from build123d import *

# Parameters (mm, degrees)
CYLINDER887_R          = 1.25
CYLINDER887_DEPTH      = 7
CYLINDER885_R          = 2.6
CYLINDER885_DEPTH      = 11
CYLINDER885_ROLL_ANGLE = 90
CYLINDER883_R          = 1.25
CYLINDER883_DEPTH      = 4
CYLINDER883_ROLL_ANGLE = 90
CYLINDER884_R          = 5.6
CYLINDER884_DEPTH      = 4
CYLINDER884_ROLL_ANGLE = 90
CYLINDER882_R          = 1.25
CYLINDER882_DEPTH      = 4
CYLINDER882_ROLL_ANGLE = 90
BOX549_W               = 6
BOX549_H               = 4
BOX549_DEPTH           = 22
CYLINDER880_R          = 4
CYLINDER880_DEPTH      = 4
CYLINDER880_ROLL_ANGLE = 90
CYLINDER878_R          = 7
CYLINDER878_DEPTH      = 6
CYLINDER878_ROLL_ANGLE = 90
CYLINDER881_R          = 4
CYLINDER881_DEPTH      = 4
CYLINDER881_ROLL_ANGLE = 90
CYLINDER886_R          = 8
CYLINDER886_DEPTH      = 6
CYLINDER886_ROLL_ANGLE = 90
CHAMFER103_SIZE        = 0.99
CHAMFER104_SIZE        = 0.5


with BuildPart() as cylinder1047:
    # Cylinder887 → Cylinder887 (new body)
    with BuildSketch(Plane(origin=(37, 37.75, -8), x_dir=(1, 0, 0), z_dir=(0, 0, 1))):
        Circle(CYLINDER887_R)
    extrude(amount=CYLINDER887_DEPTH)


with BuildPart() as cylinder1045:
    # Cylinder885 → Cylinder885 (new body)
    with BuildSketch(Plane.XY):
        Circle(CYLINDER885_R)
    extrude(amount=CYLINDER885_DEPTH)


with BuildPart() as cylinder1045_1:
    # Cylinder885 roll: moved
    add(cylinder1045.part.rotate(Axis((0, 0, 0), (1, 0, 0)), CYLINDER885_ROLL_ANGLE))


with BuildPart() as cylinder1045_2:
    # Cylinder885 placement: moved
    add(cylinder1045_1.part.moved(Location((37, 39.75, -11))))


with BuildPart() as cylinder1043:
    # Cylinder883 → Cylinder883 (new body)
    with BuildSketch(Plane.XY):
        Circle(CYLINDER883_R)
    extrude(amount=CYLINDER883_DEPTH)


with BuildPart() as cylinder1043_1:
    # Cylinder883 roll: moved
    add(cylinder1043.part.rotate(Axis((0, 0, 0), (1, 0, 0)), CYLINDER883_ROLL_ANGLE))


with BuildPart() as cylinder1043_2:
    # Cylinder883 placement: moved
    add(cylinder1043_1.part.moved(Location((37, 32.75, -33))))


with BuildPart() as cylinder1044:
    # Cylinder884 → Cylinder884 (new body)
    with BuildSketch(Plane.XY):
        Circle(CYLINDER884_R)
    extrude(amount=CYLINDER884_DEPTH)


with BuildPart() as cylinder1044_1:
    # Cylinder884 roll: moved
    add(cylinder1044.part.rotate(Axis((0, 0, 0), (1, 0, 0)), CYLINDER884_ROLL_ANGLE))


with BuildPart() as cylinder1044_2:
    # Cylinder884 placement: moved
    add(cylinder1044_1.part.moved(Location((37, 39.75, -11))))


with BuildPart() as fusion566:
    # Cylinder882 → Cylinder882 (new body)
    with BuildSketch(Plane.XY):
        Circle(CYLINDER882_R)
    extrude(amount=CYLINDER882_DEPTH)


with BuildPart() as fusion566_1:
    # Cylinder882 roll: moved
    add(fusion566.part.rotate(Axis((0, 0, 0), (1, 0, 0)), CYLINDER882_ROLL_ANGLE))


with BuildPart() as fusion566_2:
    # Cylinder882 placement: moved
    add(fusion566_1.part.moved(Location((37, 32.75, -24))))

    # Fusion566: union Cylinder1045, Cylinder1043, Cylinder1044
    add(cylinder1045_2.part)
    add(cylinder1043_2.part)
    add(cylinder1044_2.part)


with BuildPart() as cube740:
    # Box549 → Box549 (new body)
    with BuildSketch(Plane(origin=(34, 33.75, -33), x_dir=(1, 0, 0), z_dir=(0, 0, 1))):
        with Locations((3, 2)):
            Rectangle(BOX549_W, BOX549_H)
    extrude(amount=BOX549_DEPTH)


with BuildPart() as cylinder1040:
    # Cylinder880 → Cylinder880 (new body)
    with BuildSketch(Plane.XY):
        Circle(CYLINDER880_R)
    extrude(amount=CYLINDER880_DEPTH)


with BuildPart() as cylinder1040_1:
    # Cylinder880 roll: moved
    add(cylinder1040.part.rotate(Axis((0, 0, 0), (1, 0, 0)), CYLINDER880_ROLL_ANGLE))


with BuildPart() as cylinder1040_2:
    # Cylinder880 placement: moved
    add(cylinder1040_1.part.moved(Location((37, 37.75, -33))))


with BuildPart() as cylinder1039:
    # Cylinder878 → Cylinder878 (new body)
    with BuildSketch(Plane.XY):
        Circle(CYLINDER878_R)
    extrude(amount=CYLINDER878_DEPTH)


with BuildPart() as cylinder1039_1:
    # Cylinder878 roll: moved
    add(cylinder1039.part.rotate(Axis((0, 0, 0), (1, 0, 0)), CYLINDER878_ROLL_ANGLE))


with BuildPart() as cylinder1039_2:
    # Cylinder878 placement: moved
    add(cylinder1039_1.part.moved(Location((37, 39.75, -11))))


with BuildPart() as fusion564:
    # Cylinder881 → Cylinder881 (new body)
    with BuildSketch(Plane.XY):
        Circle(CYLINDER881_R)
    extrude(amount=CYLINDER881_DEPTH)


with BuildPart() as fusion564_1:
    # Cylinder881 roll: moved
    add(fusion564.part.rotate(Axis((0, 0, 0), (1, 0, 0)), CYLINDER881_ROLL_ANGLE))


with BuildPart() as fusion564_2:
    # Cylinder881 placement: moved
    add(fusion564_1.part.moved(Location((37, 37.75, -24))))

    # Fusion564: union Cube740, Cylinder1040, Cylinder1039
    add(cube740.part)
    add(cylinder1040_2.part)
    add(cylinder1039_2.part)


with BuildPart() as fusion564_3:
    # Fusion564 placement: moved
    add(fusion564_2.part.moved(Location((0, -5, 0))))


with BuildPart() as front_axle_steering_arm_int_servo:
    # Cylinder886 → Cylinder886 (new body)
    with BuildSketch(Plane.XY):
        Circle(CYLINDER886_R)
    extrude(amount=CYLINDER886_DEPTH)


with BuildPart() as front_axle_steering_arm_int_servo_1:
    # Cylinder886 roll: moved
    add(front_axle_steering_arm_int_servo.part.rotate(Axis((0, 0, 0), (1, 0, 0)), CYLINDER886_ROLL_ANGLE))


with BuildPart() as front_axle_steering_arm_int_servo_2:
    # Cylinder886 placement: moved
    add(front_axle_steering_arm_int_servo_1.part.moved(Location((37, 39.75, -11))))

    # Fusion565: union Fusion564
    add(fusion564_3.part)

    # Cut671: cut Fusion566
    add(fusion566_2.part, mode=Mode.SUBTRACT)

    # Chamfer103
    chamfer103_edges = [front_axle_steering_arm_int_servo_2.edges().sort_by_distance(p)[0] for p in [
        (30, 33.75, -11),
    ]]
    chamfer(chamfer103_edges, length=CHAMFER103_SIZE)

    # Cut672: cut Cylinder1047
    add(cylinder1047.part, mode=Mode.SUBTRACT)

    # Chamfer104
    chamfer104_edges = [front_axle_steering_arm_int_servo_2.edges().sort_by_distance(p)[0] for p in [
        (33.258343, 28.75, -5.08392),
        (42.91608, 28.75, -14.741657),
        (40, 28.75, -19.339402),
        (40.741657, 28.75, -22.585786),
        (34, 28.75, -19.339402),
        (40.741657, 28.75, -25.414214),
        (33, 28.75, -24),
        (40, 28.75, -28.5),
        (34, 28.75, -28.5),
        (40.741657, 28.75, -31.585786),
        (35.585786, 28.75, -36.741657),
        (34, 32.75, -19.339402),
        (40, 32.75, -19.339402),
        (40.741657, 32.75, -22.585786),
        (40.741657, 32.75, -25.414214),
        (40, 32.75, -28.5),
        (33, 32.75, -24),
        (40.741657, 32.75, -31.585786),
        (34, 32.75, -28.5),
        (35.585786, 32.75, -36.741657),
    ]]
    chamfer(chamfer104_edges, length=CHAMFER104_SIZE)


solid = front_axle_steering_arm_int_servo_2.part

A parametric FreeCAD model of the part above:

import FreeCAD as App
import Part
import Sketcher
from FreeCAD import Vector
Q = App.Units.Quantity


def edges_at(feature, points):
    """Names of the edges that pass closest to the given points."""
    edges = feature.Shape.Edges
    near = lambda p: min(range(len(edges)), key=lambda i: edges[i].distToShape(Part.Vertex(*p))[0])
    return sorted({f"Edge{near(p) + 1}" for p in points})

doc = App.newDocument("Part")
body = doc.addObject("PartDesign::Body", "Body")

sketch1 = doc.addObject("Sketcher::SketchObject", "Sketch")
body.addObject(sketch1)
sketch1.AttachmentSupport = (doc.XY_Plane, [""])
sketch1.MapMode = "FlatFace"
sketch1.AttachmentOffset = App.Placement(Vector(0, 0, -8), App.Rotation())
sketch1.addGeometry(Part.Circle(Vector(37, 37.75, 0), Vector(0, 0, 1), 1.25), False)
sketch1.addConstraint([
    Sketcher.Constraint("Diameter", 0, Q("2.5 mm")),
    Sketcher.Constraint("DistanceX", -1, 1, 0, 3, Q("37 mm")),
    Sketcher.Constraint("DistanceY", -1, 1, 0, 3, Q("37.75 mm")),
])
pad1 = doc.addObject("PartDesign::Pad", "Pad")
body.addObject(pad1)
pad1.Profile = sketch1
pad1.Length = 7
body2 = doc.addObject("PartDesign::Body", "Body001")

sketch2 = doc.addObject("Sketcher::SketchObject", "Sketch001")
body2.addObject(sketch2)
sketch2.AttachmentSupport = (doc.getObject("XY_Plane001"), [""])
sketch2.MapMode = "FlatFace"
sketch2.addGeometry(Part.Circle(Vector(0, 0, 0), Vector(0, 0, 1), 2.6), False)
sketch2.addConstraint([
    Sketcher.Constraint("Coincident", 0, 3, -1, 1),
    Sketcher.Constraint("Diameter", 0, Q("5.2 mm")),
])
pad2 = doc.addObject("PartDesign::Pad", "Pad001")
body2.addObject(pad2)
pad2.Profile = sketch2
pad2.Length = 11
body3 = doc.addObject("PartDesign::Body", "Body002")
doc.recompute()

body2.Placement = App.Placement(Vector(0, 0, 0), App.Rotation(Vector(1, 0, 0), 90))
boolean = doc.addObject("PartDesign::Boolean", "Boolean")
body3.addObject(boolean)
boolean.Type = "Fuse"
boolean.addObjects([body2])
body4 = doc.addObject("PartDesign::Body", "Body003")
doc.recompute()

body3.Placement = App.Placement(Vector(37, 39.75, -11), App.Rotation(Vector(0, 0, 1), 0))
boolean2 = doc.addObject("PartDesign::Boolean", "Boolean001")
body4.addObject(boolean2)
boolean2.Type = "Fuse"
boolean2.addObjects([body3])
body5 = doc.addObject("PartDesign::Body", "Body004")

sketch3 = doc.addObject("Sketcher::SketchObject", "Sketch002")
body5.addObject(sketch3)
sketch3.AttachmentSupport = (doc.getObject("XY_Plane004"), [""])
sketch3.MapMode = "FlatFace"
sketch3.addGeometry(Part.Circle(Vector(0, 0, 0), Vector(0, 0, 1), 1.25), False)
sketch3.addConstraint([
    Sketcher.Constraint("Coincident", 0, 3, -1, 1),
    Sketcher.Constraint("Diameter", 0, Q("2.5 mm")),
])
pad3 = doc.addObject("PartDesign::Pad", "Pad002")
body5.addObject(pad3)
pad3.Profile = sketch3
pad3.Length = 4
body6 = doc.addObject("PartDesign::Body", "Body005")
doc.recompute()

body5.Placement = App.Placement(Vector(0, 0, 0), App.Rotation(Vector(1, 0, 0), 90))
boolean3 = doc.addObject("PartDesign::Boolean", "Boolean002")
body6.addObject(boolean3)
boolean3.Type = "Fuse"
boolean3.addObjects([body5])
body7 = doc.addObject("PartDesign::Body", "Body006")
doc.recompute()

body6.Placement = App.Placement(Vector(37, 32.75, -33), App.Rotation(Vector(0, 0, 1), 0))
boolean4 = doc.addObject("PartDesign::Boolean", "Boolean003")
body7.addObject(boolean4)
boolean4.Type = "Fuse"
boolean4.addObjects([body6])
body8 = doc.addObject("PartDesign::Body", "Body007")

sketch4 = doc.addObject("Sketcher::SketchObject", "Sketch003")
body8.addObject(sketch4)
sketch4.AttachmentSupport = (doc.getObject("XY_Plane007"), [""])
sketch4.MapMode = "FlatFace"
sketch4.addGeometry(Part.Circle(Vector(0, 0, 0), Vector(0, 0, 1), 5.6), False)
sketch4.addConstraint([
    Sketcher.Constraint("Coincident", 0, 3, -1, 1),
    Sketcher.Constraint("Diameter", 0, Q("11.2 mm")),
])
pad4 = doc.addObject("PartDesign::Pad", "Pad003")
body8.addObject(pad4)
pad4.Profile = sketch4
pad4.Length = 4
body9 = doc.addObject("PartDesign::Body", "Body008")
doc.recompute()

body8.Placement = App.Placement(Vector(0, 0, 0), App.Rotation(Vector(1, 0, 0), 90))
boolean5 = doc.addObject("PartDesign::Boolean", "Boolean004")
body9.addObject(boolean5)
boolean5.Type = "Fuse"
boolean5.addObjects([body8])
body10 = doc.addObject("PartDesign::Body", "Body009")
doc.recompute()

body9.Placement = App.Placement(Vector(37, 39.75, -11), App.Rotation(Vector(0, 0, 1), 0))
boolean6 = doc.addObject("PartDesign::Boolean", "Boolean005")
body10.addObject(boolean6)
boolean6.Type = "Fuse"
boolean6.addObjects([body9])
body11 = doc.addObject("PartDesign::Body", "Body010")

sketch5 = doc.addObject("Sketcher::SketchObject", "Sketch004")
body11.addObject(sketch5)
sketch5.AttachmentSupport = (doc.getObject("XY_Plane010"), [""])
sketch5.MapMode = "FlatFace"
sketch5.addGeometry(Part.Circle(Vector(0, 0, 0), Vector(0, 0, 1), 1.25), False)
sketch5.addConstraint([
    Sketcher.Constraint("Coincident", 0, 3, -1, 1),
    Sketcher.Constraint("Diameter", 0, Q("2.5 mm")),
])
pad5 = doc.addObject("PartDesign::Pad", "Pad004")
body11.addObject(pad5)
pad5.Profile = sketch5
pad5.Length = 4
body12 = doc.addObject("PartDesign::Body", "Body011")
doc.recompute()

body11.Placement = App.Placement(Vector(0, 0, 0), App.Rotation(Vector(1, 0, 0), 90))
boolean7 = doc.addObject("PartDesign::Boolean", "Boolean006")
body12.addObject(boolean7)
boolean7.Type = "Fuse"
boolean7.addObjects([body11])
body13 = doc.addObject("PartDesign::Body", "Body012")
body13.AllowCompound = True
doc.recompute()

body12.Placement = App.Placement(Vector(37, 32.75, -24), App.Rotation(Vector(0, 0, 1), 0))
boolean8 = doc.addObject("PartDesign::Boolean", "Boolean007")
body13.addObject(boolean8)
boolean8.Type = "Fuse"
boolean8.addObjects([body12])
doc.recompute()

boolean9 = doc.addObject("PartDesign::Boolean", "Boolean008")
body13.addObject(boolean9)
boolean9.Type = "Fuse"
boolean9.addObjects([body4])
doc.recompute()

boolean10 = doc.addObject("PartDesign::Boolean", "Boolean009")
body13.addObject(boolean10)
boolean10.Type = "Fuse"
boolean10.addObjects([body7])
doc.recompute()

boolean11 = doc.addObject("PartDesign::Boolean", "Boolean010")
body13.addObject(boolean11)
boolean11.Type = "Fuse"
boolean11.addObjects([body10])
body14 = doc.addObject("PartDesign::Body", "Body013")

sketch6 = doc.addObject("Sketcher::SketchObject", "Sketch005")
body14.addObject(sketch6)
sketch6.AttachmentSupport = (doc.getObject("XY_Plane013"), [""])
sketch6.MapMode = "FlatFace"
sketch6.AttachmentOffset = App.Placement(Vector(0, 0, -33), App.Rotation())
sketch6.addGeometry([
    Part.LineSegment(Vector(34, 37.75, 0), Vector(34, 33.75, 0)),
    Part.LineSegment(Vector(34, 33.75, 0), Vector(40, 33.75, 0)),
    Part.LineSegment(Vector(40, 33.75, 0), Vector(40, 37.75, 0)),
    Part.LineSegment(Vector(40, 37.75, 0), Vector(34, 37.75, 0)),
], False)
sketch6.addConstraint([
    Sketcher.Constraint("Coincident", 0, 2, 1, 1),
    Sketcher.Constraint("Coincident", 1, 2, 2, 1),
    Sketcher.Constraint("Coincident", 2, 2, 3, 1),
    Sketcher.Constraint("Coincident", 3, 2, 0, 1),
    Sketcher.Constraint("Vertical", 0),
    Sketcher.Constraint("Horizontal", 1),
    Sketcher.Constraint("Vertical", 2),
    Sketcher.Constraint("Horizontal", 3),
    Sketcher.Constraint("DistanceX", 1, 1, 1, 2, Q("6 mm")),
    Sketcher.Constraint("DistanceY", 0, 2, 0, 1, Q("4 mm")),
    Sketcher.Constraint("DistanceX", -1, 1, 0, 2, Q("34 mm")),
    Sketcher.Constraint("DistanceY", -1, 1, 0, 2, Q("33.75 mm")),
])
pad6 = doc.addObject("PartDesign::Pad", "Pad005")
body14.addObject(pad6)
pad6.Profile = sketch6
pad6.Length = 22
body15 = doc.addObject("PartDesign::Body", "Body014")

sketch7 = doc.addObject("Sketcher::SketchObject", "Sketch006")
body15.addObject(sketch7)
sketch7.AttachmentSupport = (doc.getObject("XY_Plane014"), [""])
sketch7.MapMode = "FlatFace"
sketch7.addGeometry(Part.Circle(Vector(0, 0, 0), Vector(0, 0, 1), 4), False)
sketch7.addConstraint([
    Sketcher.Constraint("Coincident", 0, 3, -1, 1),
    Sketcher.Constraint("Diameter", 0, Q("8 mm")),
])
pad7 = doc.addObject("PartDesign::Pad", "Pad006")
body15.addObject(pad7)
pad7.Profile = sketch7
pad7.Length = 4
body16 = doc.addObject("PartDesign::Body", "Body015")
doc.recompute()

body15.Placement = App.Placement(Vector(0, 0, 0), App.Rotation(Vector(1, 0, 0), 90))
boolean12 = doc.addObject("PartDesign::Boolean", "Boolean011")
body16.addObject(boolean12)
boolean12.Type = "Fuse"
boolean12.addObjects([body15])
body17 = doc.addObject("PartDesign::Body", "Body016")
doc.recompute()

body16.Placement = App.Placement(Vector(37, 37.75, -33), App.Rotation(Vector(0, 0, 1), 0))
boolean13 = doc.addObject("PartDesign::Boolean", "Boolean012")
body17.addObject(boolean13)
boolean13.Type = "Fuse"
boolean13.addObjects([body16])
body18 = doc.addObject("PartDesign::Body", "Body017")

sketch8 = doc.addObject("Sketcher::SketchObject", "Sketch007")
body18.addObject(sketch8)
sketch8.AttachmentSupport = (doc.getObject("XY_Plane017"), [""])
sketch8.MapMode = "FlatFace"
sketch8.addGeometry(Part.Circle(Vector(0, 0, 0), Vector(0, 0, 1), 7), False)
sketch8.addConstraint([
    Sketcher.Constraint("Coincident", 0, 3, -1, 1),
    Sketcher.Constraint("Diameter", 0, Q("14 mm")),
])
pad8 = doc.addObject("PartDesign::Pad", "Pad007")
body18.addObject(pad8)
pad8.Profile = sketch8
pad8.Length = 6
body19 = doc.addObject("PartDesign::Body", "Body018")
doc.recompute()

body18.Placement = App.Placement(Vector(0, 0, 0), App.Rotation(Vector(1, 0, 0), 90))
boolean14 = doc.addObject("PartDesign::Boolean", "Boolean013")
body19.addObject(boolean14)
boolean14.Type = "Fuse"
boolean14.addObjects([body18])
body20 = doc.addObject("PartDesign::Body", "Body019")
doc.recompute()

body19.Placement = App.Placement(Vector(37, 39.75, -11), App.Rotation(Vector(0, 0, 1), 0))
boolean15 = doc.addObject("PartDesign::Boolean", "Boolean014")
body20.addObject(boolean15)
boolean15.Type = "Fuse"
boolean15.addObjects([body19])
body21 = doc.addObject("PartDesign::Body", "Body020")

sketch9 = doc.addObject("Sketcher::SketchObject", "Sketch008")
body21.addObject(sketch9)
sketch9.AttachmentSupport = (doc.getObject("XY_Plane020"), [""])
sketch9.MapMode = "FlatFace"
sketch9.addGeometry(Part.Circle(Vector(0, 0, 0), Vector(0, 0, 1), 4), False)
sketch9.addConstraint([
    Sketcher.Constraint("Coincident", 0, 3, -1, 1),
    Sketcher.Constraint("Diameter", 0, Q("8 mm")),
])
pad9 = doc.addObject("PartDesign::Pad", "Pad008")
body21.addObject(pad9)
pad9.Profile = sketch9
pad9.Length = 4
body22 = doc.addObject("PartDesign::Body", "Body021")
doc.recompute()

body21.Placement = App.Placement(Vector(0, 0, 0), App.Rotation(Vector(1, 0, 0), 90))
boolean16 = doc.addObject("PartDesign::Boolean", "Boolean015")
body22.addObject(boolean16)
boolean16.Type = "Fuse"
boolean16.addObjects([body21])
body23 = doc.addObject("PartDesign::Body", "Body022")
doc.recompute()

body22.Placement = App.Placement(Vector(37, 37.75, -24), App.Rotation(Vector(0, 0, 1), 0))
boolean17 = doc.addObject("PartDesign::Boolean", "Boolean016")
body23.addObject(boolean17)
boolean17.Type = "Fuse"
boolean17.addObjects([body22])
doc.recompute()

boolean18 = doc.addObject("PartDesign::Boolean", "Boolean017")
body23.addObject(boolean18)
boolean18.Type = "Fuse"
boolean18.addObjects([body14])
doc.recompute()

boolean19 = doc.addObject("PartDesign::Boolean", "Boolean018")
body23.addObject(boolean19)
boolean19.Type = "Fuse"
boolean19.addObjects([body17])
doc.recompute()

boolean20 = doc.addObject("PartDesign::Boolean", "Boolean019")
body23.addObject(boolean20)
boolean20.Type = "Fuse"
boolean20.addObjects([body20])
body24 = doc.addObject("PartDesign::Body", "Body023")
doc.recompute()

body23.Placement = App.Placement(Vector(0, -5, 0), App.Rotation(Vector(0, 0, 1), 0))
boolean21 = doc.addObject("PartDesign::Boolean", "Boolean020")
body24.addObject(boolean21)
boolean21.Type = "Fuse"
boolean21.addObjects([body23])
body25 = doc.addObject("PartDesign::Body", "Body024")

sketch10 = doc.addObject("Sketcher::SketchObject", "Sketch009")
body25.addObject(sketch10)
sketch10.AttachmentSupport = (doc.getObject("XY_Plane024"), [""])
sketch10.MapMode = "FlatFace"
sketch10.addGeometry(Part.Circle(Vector(0, 0, 0), Vector(0, 0, 1), 8), False)
sketch10.addConstraint([
    Sketcher.Constraint("Coincident", 0, 3, -1, 1),
    Sketcher.Constraint("Diameter", 0, Q("16 mm")),
])
pad10 = doc.addObject("PartDesign::Pad", "Pad009")
body25.addObject(pad10)
pad10.Profile = sketch10
pad10.Length = 6
body26 = doc.addObject("PartDesign::Body", "Body025")
doc.recompute()

body25.Placement = App.Placement(Vector(0, 0, 0), App.Rotation(Vector(1, 0, 0), 90))
boolean22 = doc.addObject("PartDesign::Boolean", "Boolean021")
body26.addObject(boolean22)
boolean22.Type = "Fuse"
boolean22.addObjects([body25])
body27 = doc.addObject("PartDesign::Body", "Body026")
doc.recompute()

body26.Placement = App.Placement(Vector(37, 39.75, -11), App.Rotation(Vector(0, 0, 1), 0))
boolean23 = doc.addObject("PartDesign::Boolean", "Boolean022")
body27.addObject(boolean23)
boolean23.Type = "Fuse"
boolean23.addObjects([body26])
doc.recompute()

boolean24 = doc.addObject("PartDesign::Boolean", "Boolean023")
body27.addObject(boolean24)
boolean24.Type = "Fuse"
boolean24.addObjects([body24])
doc.recompute()

boolean25 = doc.addObject("PartDesign::Boolean", "Boolean024")
body27.addObject(boolean25)
boolean25.Type = "Cut"
boolean25.addObjects([body13])
doc.recompute()

chamfer = doc.addObject("PartDesign::Chamfer", "Chamfer")
body27.addObject(chamfer)
chamfer.Base = (boolean25, edges_at(boolean25, [(30, 33.75, -11)]))
chamfer.Size = 0.99
doc.recompute()

boolean26 = doc.addObject("PartDesign::Boolean", "Boolean025")
body27.addObject(boolean26)
boolean26.Type = "Cut"
boolean26.addObjects([body])
doc.recompute()

chamfer2 = doc.addObject("PartDesign::Chamfer", "Chamfer001")
body27.addObject(chamfer2)
chamfer2.Base = (boolean26, edges_at(boolean26, [
    (33.258, 28.75, -5.084),
    (42.916, 28.75, -14.742),
    (40, 28.75, -19.339),
    (41, 28.75, -24),
    (34, 28.75, -19.339),
    (41, 28.75, -24),
    (33, 28.75, -24),
    (40, 28.75, -28.5),
    (34, 28.75, -28.5),
    (37, 28.75, -37),
    (37, 28.75, -37),
    (34, 32.75, -19.339),
    (40, 32.75, -19.339),
    (41, 32.75, -24),
    (41, 32.75, -24),
    (40, 32.75, -28.5),
    (33, 32.75, -24),
    (37, 32.75, -37),
    (34, 32.75, -28.5),
    (37, 32.75, -37),
]))
chamfer2.Size = 0.5

doc.recompute()
